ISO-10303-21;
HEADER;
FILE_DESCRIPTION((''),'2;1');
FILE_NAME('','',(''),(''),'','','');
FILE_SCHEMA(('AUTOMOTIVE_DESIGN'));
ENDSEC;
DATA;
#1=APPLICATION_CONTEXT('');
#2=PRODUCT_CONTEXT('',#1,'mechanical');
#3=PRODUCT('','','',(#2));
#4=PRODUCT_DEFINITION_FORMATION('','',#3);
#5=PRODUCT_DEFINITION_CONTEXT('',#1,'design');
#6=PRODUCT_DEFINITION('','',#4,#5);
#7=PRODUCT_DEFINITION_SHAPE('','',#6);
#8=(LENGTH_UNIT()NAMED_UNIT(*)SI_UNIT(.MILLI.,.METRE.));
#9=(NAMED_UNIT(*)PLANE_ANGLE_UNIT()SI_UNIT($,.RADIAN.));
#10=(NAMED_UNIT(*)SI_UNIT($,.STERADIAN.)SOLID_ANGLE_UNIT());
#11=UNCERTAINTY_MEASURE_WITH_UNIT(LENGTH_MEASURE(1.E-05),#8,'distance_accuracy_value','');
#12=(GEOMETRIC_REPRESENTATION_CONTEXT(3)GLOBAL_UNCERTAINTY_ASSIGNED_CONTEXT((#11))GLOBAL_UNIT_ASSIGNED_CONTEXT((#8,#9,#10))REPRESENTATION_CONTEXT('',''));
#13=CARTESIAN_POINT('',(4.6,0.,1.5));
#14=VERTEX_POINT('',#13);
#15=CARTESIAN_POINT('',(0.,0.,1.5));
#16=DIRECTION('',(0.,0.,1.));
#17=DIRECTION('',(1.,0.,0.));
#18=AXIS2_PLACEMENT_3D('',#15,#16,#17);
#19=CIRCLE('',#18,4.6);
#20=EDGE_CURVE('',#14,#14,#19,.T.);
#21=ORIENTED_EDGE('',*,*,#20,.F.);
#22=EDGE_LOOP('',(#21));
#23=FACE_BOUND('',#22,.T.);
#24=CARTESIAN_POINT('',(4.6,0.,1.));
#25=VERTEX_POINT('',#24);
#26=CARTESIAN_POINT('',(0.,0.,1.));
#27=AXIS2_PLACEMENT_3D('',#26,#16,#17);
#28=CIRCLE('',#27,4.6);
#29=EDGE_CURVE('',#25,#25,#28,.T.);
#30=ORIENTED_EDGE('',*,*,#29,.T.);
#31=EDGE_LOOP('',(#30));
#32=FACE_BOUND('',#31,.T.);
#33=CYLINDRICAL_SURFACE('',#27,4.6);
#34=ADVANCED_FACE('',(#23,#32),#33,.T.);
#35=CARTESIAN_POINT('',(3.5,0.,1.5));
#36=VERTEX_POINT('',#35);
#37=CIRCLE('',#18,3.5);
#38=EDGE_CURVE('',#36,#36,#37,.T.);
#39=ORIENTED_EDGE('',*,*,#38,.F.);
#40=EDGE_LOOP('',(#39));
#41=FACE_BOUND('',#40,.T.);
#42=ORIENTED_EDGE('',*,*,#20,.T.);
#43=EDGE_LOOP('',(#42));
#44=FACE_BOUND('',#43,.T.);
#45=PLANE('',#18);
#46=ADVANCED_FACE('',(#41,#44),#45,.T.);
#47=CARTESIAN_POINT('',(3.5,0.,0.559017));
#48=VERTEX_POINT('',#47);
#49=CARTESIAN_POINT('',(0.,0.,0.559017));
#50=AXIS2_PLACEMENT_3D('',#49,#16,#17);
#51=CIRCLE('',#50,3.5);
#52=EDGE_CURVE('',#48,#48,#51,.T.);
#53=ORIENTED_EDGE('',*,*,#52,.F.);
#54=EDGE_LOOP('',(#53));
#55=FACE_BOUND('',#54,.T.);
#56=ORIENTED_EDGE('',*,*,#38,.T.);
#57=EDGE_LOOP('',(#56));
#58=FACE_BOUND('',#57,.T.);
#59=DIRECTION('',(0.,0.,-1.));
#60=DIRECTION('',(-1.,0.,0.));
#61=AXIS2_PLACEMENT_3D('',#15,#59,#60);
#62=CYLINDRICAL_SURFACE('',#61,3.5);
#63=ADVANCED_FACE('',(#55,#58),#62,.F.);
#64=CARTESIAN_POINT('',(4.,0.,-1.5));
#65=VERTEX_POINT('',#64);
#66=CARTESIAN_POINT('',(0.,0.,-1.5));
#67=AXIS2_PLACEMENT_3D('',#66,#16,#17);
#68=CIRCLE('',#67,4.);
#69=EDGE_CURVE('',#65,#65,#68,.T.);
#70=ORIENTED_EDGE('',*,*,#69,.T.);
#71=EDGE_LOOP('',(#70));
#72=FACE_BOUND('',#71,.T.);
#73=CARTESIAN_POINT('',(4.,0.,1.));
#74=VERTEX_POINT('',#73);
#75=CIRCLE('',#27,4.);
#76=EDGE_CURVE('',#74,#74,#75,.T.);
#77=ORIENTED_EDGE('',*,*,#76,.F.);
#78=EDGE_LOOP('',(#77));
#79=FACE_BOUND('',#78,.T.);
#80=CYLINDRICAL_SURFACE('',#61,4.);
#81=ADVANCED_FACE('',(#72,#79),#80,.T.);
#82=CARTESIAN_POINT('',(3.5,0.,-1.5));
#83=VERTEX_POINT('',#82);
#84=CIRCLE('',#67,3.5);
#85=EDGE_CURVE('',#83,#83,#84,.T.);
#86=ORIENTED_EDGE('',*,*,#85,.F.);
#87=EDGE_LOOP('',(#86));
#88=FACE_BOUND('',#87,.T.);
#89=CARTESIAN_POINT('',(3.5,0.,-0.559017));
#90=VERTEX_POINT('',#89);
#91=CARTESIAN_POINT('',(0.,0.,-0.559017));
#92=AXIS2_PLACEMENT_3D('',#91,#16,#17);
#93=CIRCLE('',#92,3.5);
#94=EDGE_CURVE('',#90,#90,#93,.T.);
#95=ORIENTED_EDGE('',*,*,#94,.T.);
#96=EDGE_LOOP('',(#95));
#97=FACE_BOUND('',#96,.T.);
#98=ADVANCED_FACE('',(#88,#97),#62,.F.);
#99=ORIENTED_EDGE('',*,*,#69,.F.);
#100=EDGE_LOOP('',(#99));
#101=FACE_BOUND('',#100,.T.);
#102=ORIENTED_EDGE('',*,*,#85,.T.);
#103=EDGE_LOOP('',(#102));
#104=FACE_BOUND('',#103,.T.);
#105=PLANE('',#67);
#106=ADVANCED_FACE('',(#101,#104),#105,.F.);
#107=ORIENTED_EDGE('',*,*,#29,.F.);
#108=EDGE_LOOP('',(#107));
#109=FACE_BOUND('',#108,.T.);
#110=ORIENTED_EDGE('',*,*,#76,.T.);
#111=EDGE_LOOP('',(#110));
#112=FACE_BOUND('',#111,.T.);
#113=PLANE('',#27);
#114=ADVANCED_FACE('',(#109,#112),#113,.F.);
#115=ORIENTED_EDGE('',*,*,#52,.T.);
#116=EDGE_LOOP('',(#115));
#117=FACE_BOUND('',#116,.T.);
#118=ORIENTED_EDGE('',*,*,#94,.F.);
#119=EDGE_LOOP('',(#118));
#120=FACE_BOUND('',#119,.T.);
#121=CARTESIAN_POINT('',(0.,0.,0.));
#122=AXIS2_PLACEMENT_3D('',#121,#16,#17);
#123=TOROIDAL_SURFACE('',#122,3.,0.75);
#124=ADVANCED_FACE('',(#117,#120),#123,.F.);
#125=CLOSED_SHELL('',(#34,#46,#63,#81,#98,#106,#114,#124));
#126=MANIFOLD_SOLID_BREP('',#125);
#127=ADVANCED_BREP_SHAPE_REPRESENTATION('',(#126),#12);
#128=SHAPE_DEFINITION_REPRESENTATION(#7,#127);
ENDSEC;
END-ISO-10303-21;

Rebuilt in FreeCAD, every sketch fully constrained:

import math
import FreeCAD as App
import Part
import Sketcher

doc = App.newDocument("Part")
params = doc.addObject("Spreadsheet::Sheet", "Params")
for row, (alias, value) in enumerate([
    ("sketch1_diameter", "8 mm"),
    ("sketch1_diameter2", "7 mm"),
    ("pad1_length", "3 mm"),
    ("sketch2_diameter", "8 mm"),
    ("sketch2_diameter2", "9.2 mm"),
    ("pad2_length", "0.5 mm"),
    ("sketch3_radius", "0.75 mm"),
    ("groove_angle", "360 deg"),
], start=1):
    params.set(f"A{row}", alias)
    params.set(f"B{row}", "=" + value)
    params.setAlias(f"B{row}", alias)

body = doc.addObject("PartDesign::Body", "Body")

# Sketch on XY plane
sketch1 = body.newObject("Sketcher::SketchObject", "Sketch")
sketch1.AttachmentSupport = (doc.getObject("XY_Plane"), [""])
sketch1.MapMode = "FlatFace"
sketch1.addGeometry(Part.Circle(App.Vector(0, 0, 0), App.Vector(0, 0, 1), 4), False)
sketch1.addGeometry(Part.Circle(App.Vector(0, 0, 0), App.Vector(0, 0, 1), 3.5), False)
sketch1.addConstraint(Sketcher.Constraint("Coincident", 0, 3, -1, 1))
sketch1.addConstraint(Sketcher.Constraint("Coincident", 1, 3, -1, 1))
sketch1.addConstraint(Sketcher.Constraint("Diameter", 0, 8.0))
sketch1.addConstraint(Sketcher.Constraint("Diameter", 1, 7.0))
sketch1.setExpression("Constraints[2]", "Params.sketch1_diameter")
sketch1.setExpression("Constraints[3]", "Params.sketch1_diameter2")
pad1 = body.newObject("PartDesign::Pad", "Pad")
pad1.Profile = sketch1
pad1.setExpression("Length", "Params.pad1_length")
pad1.Midplane = True

# Sketch on XY plane
sketch2 = body.newObject("Sketcher::SketchObject", "Sketch001")
sketch2.AttachmentSupport = (doc.getObject("XY_Plane"), [""])
sketch2.MapMode = "FlatFace"
sketch2.AttachmentOffset = App.Placement(App.Vector(0, 0, 1.5), App.Rotation())
sketch2.addGeometry(Part.Circle(App.Vector(0, 0, 0), App.Vector(0, 0, 1), 4.6), False)
sketch2.addGeometry(Part.Circle(App.Vector(0, 0, 0), App.Vector(0, 0, 1), 4), False)
sketch2.addConstraint(Sketcher.Constraint("Coincident", 0, 3, -1, 1))
sketch2.addConstraint(Sketcher.Constraint("Coincident", 1, 3, -1, 1))
sketch2.addConstraint(Sketcher.Constraint("Diameter", 1, 8.0))
sketch2.addConstraint(Sketcher.Constraint("Diameter", 0, 9.2))
sketch2.setExpression("Constraints[2]", "Params.sketch2_diameter")
sketch2.setExpression("Constraints[3]", "Params.sketch2_diameter2")
pad2 = body.newObject("PartDesign::Pad", "Pad001")
pad2.Profile = sketch2
pad2.setExpression("Length", "Params.pad2_length")
pad2.Reversed = True

# Sketch on XZ plane
sketch3 = body.newObject("Sketcher::SketchObject", "Sketch002")
sketch3.AttachmentSupport = (doc.getObject("XZ_Plane"), [""])
sketch3.MapMode = "FlatFace"
sketch3.addGeometry(Part.LineSegment(App.Vector(-3.5, 0.6, 0), App.Vector(-3.5, -0.6, 0)), False)
sketch3.addGeometry(Part.ArcOfCircle(Part.Circle(App.Vector(-3, 0, 0), App.Vector(0, 0, 1), 0.7), math.radians(132), math.radians(228)), False)
sketch3.addConstraint(Sketcher.Constraint("Coincident", 0, 1, 1, 1))
sketch3.addConstraint(Sketcher.Constraint("Coincident", 1, 2, 0, 2))
sketch3.addConstraint(Sketcher.Constraint("Vertical", 0))
sketch3.addConstraint(Sketcher.Constraint("PointOnObject", 1, 3, -1))
sketch3.addConstraint(Sketcher.Constraint("Radius", 1, 0.75))
sketch3.addConstraint(Sketcher.Constraint("DistanceX", 1, 3, -1, 1, 3.0))
sketch3.addConstraint(Sketcher.Constraint("DistanceX", 0, 1, -1, 1, 3.5))
sketch3.setExpression("Constraints[4]", "Params.sketch3_radius")
groove = body.newObject("PartDesign::Groove", "Groove")
groove.Profile = sketch3
groove.ReferenceAxis = (sketch3, ["V_Axis"])
groove.setExpression("Angle", "Params.groove_angle")

doc.recompute()
